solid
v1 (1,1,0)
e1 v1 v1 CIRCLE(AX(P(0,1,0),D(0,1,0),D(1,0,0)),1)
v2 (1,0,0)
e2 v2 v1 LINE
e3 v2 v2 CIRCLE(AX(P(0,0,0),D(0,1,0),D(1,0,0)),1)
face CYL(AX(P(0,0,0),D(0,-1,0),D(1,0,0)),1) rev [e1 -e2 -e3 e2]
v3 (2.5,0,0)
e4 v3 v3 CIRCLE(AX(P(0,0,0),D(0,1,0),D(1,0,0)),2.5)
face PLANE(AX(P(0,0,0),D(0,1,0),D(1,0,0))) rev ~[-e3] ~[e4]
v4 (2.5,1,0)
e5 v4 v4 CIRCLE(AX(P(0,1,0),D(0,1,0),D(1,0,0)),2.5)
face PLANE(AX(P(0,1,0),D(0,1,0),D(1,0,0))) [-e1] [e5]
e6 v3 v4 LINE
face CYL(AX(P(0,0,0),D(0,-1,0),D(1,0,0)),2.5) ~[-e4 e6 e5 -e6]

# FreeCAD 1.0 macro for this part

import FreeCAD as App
import Part
import Sketcher
Q = App.Units.Quantity

doc = App.newDocument("Part")
body = doc.addObject("PartDesign::Body", "Body")

sketch1 = body.newObject("Sketcher::SketchObject", "Sketch")
sketch1.AttachmentSupport = (doc.getObject("XZ_Plane"), [""])
sketch1.MapMode = "FlatFace"
sketch1.addGeometry(Part.Circle(App.Vector(0, 0, 0), App.Vector(0, 0, 1), 2.5), False)
sketch1.addGeometry(Part.Circle(App.Vector(0, 0, 0), App.Vector(0, 0, 1), 1), False)
sketch1.addConstraint(Sketcher.Constraint("Coincident", 0, 3, -1, 1))
sketch1.addConstraint(Sketcher.Constraint("Coincident", 1, 3, -1, 1))
sketch1.addConstraint(Sketcher.Constraint("Diameter", 0, Q("5 mm")))
sketch1.addConstraint(Sketcher.Constraint("Diameter", 1, Q("2 mm")))
pad1 = body.newObject("PartDesign::Pad", "Pad")
pad1.Profile = sketch1
pad1.Length = 1
pad1.Reversed = True

doc.recompute()
